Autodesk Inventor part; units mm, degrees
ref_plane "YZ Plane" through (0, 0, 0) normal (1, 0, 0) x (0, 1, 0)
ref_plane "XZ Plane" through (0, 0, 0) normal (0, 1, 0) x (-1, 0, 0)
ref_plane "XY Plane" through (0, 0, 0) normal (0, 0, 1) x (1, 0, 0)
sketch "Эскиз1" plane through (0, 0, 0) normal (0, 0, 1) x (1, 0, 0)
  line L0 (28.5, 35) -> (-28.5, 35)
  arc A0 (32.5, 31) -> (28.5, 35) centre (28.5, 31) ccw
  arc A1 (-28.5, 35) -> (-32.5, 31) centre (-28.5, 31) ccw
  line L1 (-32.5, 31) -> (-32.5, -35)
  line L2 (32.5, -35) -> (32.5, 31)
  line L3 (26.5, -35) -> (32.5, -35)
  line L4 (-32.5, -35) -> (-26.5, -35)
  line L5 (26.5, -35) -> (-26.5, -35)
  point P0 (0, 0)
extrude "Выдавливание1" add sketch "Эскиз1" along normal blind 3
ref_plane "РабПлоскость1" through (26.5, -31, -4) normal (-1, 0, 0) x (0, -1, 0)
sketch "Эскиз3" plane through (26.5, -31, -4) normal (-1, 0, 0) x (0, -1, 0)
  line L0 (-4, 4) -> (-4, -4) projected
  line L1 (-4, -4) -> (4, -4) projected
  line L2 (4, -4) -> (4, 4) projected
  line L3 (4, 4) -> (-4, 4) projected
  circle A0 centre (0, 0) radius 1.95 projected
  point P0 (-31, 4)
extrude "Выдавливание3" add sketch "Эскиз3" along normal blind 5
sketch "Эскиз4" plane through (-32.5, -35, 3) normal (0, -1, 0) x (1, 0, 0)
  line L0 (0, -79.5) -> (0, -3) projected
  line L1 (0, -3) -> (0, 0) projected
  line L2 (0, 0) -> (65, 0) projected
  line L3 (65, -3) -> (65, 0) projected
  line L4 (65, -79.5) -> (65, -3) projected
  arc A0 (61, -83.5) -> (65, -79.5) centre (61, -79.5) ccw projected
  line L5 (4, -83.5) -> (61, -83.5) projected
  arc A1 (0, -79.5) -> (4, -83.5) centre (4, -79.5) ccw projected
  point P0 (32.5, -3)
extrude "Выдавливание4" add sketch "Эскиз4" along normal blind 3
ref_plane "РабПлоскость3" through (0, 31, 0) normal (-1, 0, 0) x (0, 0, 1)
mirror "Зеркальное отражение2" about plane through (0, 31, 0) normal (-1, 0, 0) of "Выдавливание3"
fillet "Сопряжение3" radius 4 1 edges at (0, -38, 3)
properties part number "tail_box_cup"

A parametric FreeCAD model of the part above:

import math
import FreeCAD as App
import Part
import Sketcher
Q = App.Units.Quantity


def edges_at(feature, points):
    """Names of the edges that pass closest to the given points."""
    edges = feature.Shape.Edges
    near = lambda p: min(range(len(edges)), key=lambda i: edges[i].distToShape(Part.Vertex(*p))[0])
    return sorted({f"Edge{near(p) + 1}" for p in points})

doc = App.newDocument("Part")
body = doc.addObject("PartDesign::Body", "Body")

# Sketch on XY plane
sketch1 = body.newObject("Sketcher::SketchObject", "Sketch")
sketch1.AttachmentSupport = (doc.getObject("XY_Plane"), [""])
sketch1.MapMode = "FlatFace"
sketch1.addGeometry(Part.ArcOfCircle(Part.Circle(App.Vector(28.5, 31, 0), App.Vector(0, 0, 1), 4), math.radians(0), math.radians(90)), False)
sketch1.addGeometry(Part.LineSegment(App.Vector(28.5, 35, 0), App.Vector(-28.5, 35, 0)), False)
sketch1.addGeometry(Part.ArcOfCircle(Part.Circle(App.Vector(-28.5, 31, 0), App.Vector(0, 0, 1), 4), math.radians(90), math.radians(180)), False)
sketch1.addGeometry(Part.LineSegment(App.Vector(-32.5, 31, 0), App.Vector(-32.5, -35, 0)), False)
sketch1.addGeometry(Part.LineSegment(App.Vector(-32.5, -35, 0), App.Vector(32.5, -35, 0)), False)
sketch1.addGeometry(Part.LineSegment(App.Vector(32.5, -35, 0), App.Vector(32.5, 31, 0)), False)
sketch1.addConstraint(Sketcher.Constraint("Tangent", 0, 2, 1, 1))
sketch1.addConstraint(Sketcher.Constraint("Tangent", 1, 2, 2, 1))
sketch1.addConstraint(Sketcher.Constraint("Tangent", 2, 2, 3, 1))
sketch1.addConstraint(Sketcher.Constraint("Coincident", 3, 2, 4, 1))
sketch1.addConstraint(Sketcher.Constraint("Coincident", 4, 2, 5, 1))
sketch1.addConstraint(Sketcher.Constraint("Tangent", 5, 2, 0, 1))
sketch1.addConstraint(Sketcher.Constraint("Horizontal", 1))
sketch1.addConstraint(Sketcher.Constraint("Vertical", 3))
sketch1.addConstraint(Sketcher.Constraint("Horizontal", 4))
sketch1.addConstraint(Sketcher.Constraint("Vertical", 5))
sketch1.addConstraint(Sketcher.Constraint("Equal", 0, 2))
sketch1.addConstraint(Sketcher.Constraint("Radius", 0, Q("4 mm")))
sketch1.addConstraint(Sketcher.Constraint("DistanceX", 1, 2, 1, 1, Q("57 mm")))
sketch1.addConstraint(Sketcher.Constraint("DistanceY", 3, 2, 3, 1, Q("66 mm")))
sketch1.addConstraint(Sketcher.Constraint("DistanceY", -1, 1, 0, 3, Q("31 mm")))
sketch1.addConstraint(Sketcher.Constraint("DistanceX", -1, 1, 0, 3, Q("28.5 mm")))
pad1 = body.newObject("PartDesign::Pad", "Pad")
pad1.Profile = sketch1
pad1.Length = 3

# Sketch on YZ plane
sketch2 = body.newObject("Sketcher::SketchObject", "Sketch001")
sketch2.AttachmentSupport = (doc.getObject("YZ_Plane"), [""])
sketch2.MapMode = "FlatFace"
sketch2.AttachmentOffset = App.Placement(App.Vector(0, 0, 26.5), App.Rotation())
sketch2.addGeometry(Part.LineSegment(App.Vector(-35, 0, 0), App.Vector(-27, 0, 0)), False)
sketch2.addGeometry(Part.LineSegment(App.Vector(-27, 0, 0), App.Vector(-27, -8, 0)), False)
sketch2.addGeometry(Part.LineSegment(App.Vector(-27, -8, 0), App.Vector(-35, -8, 0)), False)
sketch2.addGeometry(Part.LineSegment(App.Vector(-35, -8, 0), App.Vector(-35, 0, 0)), False)
sketch2.addGeometry(Part.Circle(App.Vector(-31, -4, 0), App.Vector(0, 0, 1), 1.95), False)
sketch2.addConstraint(Sketcher.Constraint("Coincident", 0, 2, 1, 1))
sketch2.addConstraint(Sketcher.Constraint("Coincident", 1, 2, 2, 1))
sketch2.addConstraint(Sketcher.Constraint("Coincident", 2, 2, 3, 1))
sketch2.addConstraint(Sketcher.Constraint("Coincident", 3, 2, 0, 1))
sketch2.addConstraint(Sketcher.Constraint("Horizontal", 0))
sketch2.addConstraint(Sketcher.Constraint("Vertical", 1))
sketch2.addConstraint(Sketcher.Constraint("Horizontal", 2))
sketch2.addConstraint(Sketcher.Constraint("Vertical", 3))
sketch2.addConstraint(Sketcher.Constraint("PointOnObject", 0, 2, -1))
sketch2.addConstraint(Sketcher.Constraint("Equal", 2, 1))
sketch2.addConstraint(Sketcher.Constraint("Diameter", 4, Q("3.9 mm")))
sketch2.addConstraint(Sketcher.Constraint("DistanceX", 0, 1, 0, 2, Q("8 mm")))
sketch2.addConstraint(Sketcher.Constraint("DistanceX", 4, 3, -1, 1, Q("31 mm")))
sketch2.addConstraint(Sketcher.Constraint("DistanceY", 4, 3, -1, 1, Q("4 mm")))
sketch2.addConstraint(Sketcher.Constraint("DistanceX", 0, 2, -1, 1, Q("27 mm")))
pad2 = body.newObject("PartDesign::Pad", "Pad001")
pad2.Profile = sketch2
pad2.Length = 5
pad2.Reversed = True

# Sketch on XZ plane
sketch3 = body.newObject("Sketcher::SketchObject", "Sketch002")
sketch3.AttachmentSupport = (doc.getObject("XZ_Plane"), [""])
sketch3.MapMode = "FlatFace"
sketch3.AttachmentOffset = App.Placement(App.Vector(0, 0, 35), App.Rotation())
sketch3.addGeometry(Part.LineSegment(App.Vector(-32.5, 3, 0), App.Vector(-32.5, -76.5, 0)), False)
sketch3.addGeometry(Part.ArcOfCircle(Part.Circle(App.Vector(-28.5, -76.5, 0), App.Vector(0, 0, 1), 4), math.radians(180), math.radians(270)), False)
sketch3.addGeometry(Part.LineSegment(App.Vector(-28.5, -80.5, 0), App.Vector(28.5, -80.5, 0)), False)
sketch3.addGeometry(Part.ArcOfCircle(Part.Circle(App.Vector(28.5, -76.5, 0), App.Vector(0, 0, 1), 4), math.radians(-90), math.radians(0)), False)
sketch3.addGeometry(Part.LineSegment(App.Vector(32.5, -76.5, 0), App.Vector(32.5, 3, 0)), False)
sketch3.addGeometry(Part.LineSegment(App.Vector(32.5, 3, 0), App.Vector(-32.5, 3, 0)), False)
sketch3.addConstraint(Sketcher.Constraint("Tangent", 0, 2, 1, 1))
sketch3.addConstraint(Sketcher.Constraint("Tangent", 1, 2, 2, 1))
sketch3.addConstraint(Sketcher.Constraint("Tangent", 2, 2, 3, 1))
sketch3.addConstraint(Sketcher.Constraint("Tangent", 3, 2, 4, 1))
sketch3.addConstraint(Sketcher.Constraint("Coincident", 4, 2, 5, 1))
sketch3.addConstraint(Sketcher.Constraint("Coincident", 5, 2, 0, 1))
sketch3.addConstraint(Sketcher.Constraint("Vertical", 0))
sketch3.addConstraint(Sketcher.Constraint("Horizontal", 2))
sketch3.addConstraint(Sketcher.Constraint("Vertical", 4))
sketch3.addConstraint(Sketcher.Constraint("Horizontal", 5))
sketch3.addConstraint(Sketcher.Constraint("Equal", 1, 3))
sketch3.addConstraint(Sketcher.Constraint("Radius", 1, Q("4 mm")))
sketch3.addConstraint(Sketcher.Constraint("DistanceX", 2, 1, 2, 2, Q("57 mm")))
sketch3.addConstraint(Sketcher.Constraint("DistanceY", 0, 2, 0, 1, Q("79.5 mm")))
sketch3.addConstraint(Sketcher.Constraint("DistanceY", -1, 1, 4, 2, Q("3 mm")))
sketch3.addConstraint(Sketcher.Constraint("DistanceX", 1, 3, -1, 1, Q("28.5 mm")))
pad3 = body.newObject("PartDesign::Pad", "Pad002")
pad3.Profile = sketch3
pad3.Length = 3
doc.recompute()

mirrored = body.newObject("PartDesign::Mirrored", "Mirrored")
mirrored.Originals = [pad2]
mirrored.MirrorPlane = (doc.getObject("YZ_Plane"), [""])
body.Tip = mirrored
doc.recompute()

fillet = body.newObject("PartDesign::Fillet", "Fillet")
fillet.Base = (mirrored, edges_at(mirrored, [(0, -38, 3)]))
fillet.Radius = 4

doc.recompute()
